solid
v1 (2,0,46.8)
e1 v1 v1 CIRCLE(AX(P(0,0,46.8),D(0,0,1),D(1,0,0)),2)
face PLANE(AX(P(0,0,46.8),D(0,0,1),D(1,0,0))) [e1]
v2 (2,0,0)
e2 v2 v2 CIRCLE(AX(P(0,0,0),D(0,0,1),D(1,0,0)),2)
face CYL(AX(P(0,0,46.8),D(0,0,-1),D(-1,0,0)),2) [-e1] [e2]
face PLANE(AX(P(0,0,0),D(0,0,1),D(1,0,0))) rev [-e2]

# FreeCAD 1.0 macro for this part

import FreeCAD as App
import Part
import Sketcher
from FreeCAD import Vector
Q = App.Units.Quantity

doc = App.newDocument("Part")
body = doc.addObject("PartDesign::Body", "Body")

sketch1 = doc.addObject("Sketcher::SketchObject", "Sketch")
body.addObject(sketch1)
sketch1.AttachmentSupport = (doc.XY_Plane, [""])
sketch1.MapMode = "FlatFace"
sketch1.addGeometry(Part.Circle(Vector(0, 0, 0), Vector(0, 0, 1), 2), False)
sketch1.addConstraint([
    Sketcher.Constraint("Coincident", 0, 3, -1, 1),
    Sketcher.Constraint("Diameter", 0, Q("4 mm")),
])
pad1 = doc.addObject("PartDesign::Pad", "Pad")
body.addObject(pad1)
pad1.Profile = sketch1
pad1.Length = 46.8

doc.recompute()
